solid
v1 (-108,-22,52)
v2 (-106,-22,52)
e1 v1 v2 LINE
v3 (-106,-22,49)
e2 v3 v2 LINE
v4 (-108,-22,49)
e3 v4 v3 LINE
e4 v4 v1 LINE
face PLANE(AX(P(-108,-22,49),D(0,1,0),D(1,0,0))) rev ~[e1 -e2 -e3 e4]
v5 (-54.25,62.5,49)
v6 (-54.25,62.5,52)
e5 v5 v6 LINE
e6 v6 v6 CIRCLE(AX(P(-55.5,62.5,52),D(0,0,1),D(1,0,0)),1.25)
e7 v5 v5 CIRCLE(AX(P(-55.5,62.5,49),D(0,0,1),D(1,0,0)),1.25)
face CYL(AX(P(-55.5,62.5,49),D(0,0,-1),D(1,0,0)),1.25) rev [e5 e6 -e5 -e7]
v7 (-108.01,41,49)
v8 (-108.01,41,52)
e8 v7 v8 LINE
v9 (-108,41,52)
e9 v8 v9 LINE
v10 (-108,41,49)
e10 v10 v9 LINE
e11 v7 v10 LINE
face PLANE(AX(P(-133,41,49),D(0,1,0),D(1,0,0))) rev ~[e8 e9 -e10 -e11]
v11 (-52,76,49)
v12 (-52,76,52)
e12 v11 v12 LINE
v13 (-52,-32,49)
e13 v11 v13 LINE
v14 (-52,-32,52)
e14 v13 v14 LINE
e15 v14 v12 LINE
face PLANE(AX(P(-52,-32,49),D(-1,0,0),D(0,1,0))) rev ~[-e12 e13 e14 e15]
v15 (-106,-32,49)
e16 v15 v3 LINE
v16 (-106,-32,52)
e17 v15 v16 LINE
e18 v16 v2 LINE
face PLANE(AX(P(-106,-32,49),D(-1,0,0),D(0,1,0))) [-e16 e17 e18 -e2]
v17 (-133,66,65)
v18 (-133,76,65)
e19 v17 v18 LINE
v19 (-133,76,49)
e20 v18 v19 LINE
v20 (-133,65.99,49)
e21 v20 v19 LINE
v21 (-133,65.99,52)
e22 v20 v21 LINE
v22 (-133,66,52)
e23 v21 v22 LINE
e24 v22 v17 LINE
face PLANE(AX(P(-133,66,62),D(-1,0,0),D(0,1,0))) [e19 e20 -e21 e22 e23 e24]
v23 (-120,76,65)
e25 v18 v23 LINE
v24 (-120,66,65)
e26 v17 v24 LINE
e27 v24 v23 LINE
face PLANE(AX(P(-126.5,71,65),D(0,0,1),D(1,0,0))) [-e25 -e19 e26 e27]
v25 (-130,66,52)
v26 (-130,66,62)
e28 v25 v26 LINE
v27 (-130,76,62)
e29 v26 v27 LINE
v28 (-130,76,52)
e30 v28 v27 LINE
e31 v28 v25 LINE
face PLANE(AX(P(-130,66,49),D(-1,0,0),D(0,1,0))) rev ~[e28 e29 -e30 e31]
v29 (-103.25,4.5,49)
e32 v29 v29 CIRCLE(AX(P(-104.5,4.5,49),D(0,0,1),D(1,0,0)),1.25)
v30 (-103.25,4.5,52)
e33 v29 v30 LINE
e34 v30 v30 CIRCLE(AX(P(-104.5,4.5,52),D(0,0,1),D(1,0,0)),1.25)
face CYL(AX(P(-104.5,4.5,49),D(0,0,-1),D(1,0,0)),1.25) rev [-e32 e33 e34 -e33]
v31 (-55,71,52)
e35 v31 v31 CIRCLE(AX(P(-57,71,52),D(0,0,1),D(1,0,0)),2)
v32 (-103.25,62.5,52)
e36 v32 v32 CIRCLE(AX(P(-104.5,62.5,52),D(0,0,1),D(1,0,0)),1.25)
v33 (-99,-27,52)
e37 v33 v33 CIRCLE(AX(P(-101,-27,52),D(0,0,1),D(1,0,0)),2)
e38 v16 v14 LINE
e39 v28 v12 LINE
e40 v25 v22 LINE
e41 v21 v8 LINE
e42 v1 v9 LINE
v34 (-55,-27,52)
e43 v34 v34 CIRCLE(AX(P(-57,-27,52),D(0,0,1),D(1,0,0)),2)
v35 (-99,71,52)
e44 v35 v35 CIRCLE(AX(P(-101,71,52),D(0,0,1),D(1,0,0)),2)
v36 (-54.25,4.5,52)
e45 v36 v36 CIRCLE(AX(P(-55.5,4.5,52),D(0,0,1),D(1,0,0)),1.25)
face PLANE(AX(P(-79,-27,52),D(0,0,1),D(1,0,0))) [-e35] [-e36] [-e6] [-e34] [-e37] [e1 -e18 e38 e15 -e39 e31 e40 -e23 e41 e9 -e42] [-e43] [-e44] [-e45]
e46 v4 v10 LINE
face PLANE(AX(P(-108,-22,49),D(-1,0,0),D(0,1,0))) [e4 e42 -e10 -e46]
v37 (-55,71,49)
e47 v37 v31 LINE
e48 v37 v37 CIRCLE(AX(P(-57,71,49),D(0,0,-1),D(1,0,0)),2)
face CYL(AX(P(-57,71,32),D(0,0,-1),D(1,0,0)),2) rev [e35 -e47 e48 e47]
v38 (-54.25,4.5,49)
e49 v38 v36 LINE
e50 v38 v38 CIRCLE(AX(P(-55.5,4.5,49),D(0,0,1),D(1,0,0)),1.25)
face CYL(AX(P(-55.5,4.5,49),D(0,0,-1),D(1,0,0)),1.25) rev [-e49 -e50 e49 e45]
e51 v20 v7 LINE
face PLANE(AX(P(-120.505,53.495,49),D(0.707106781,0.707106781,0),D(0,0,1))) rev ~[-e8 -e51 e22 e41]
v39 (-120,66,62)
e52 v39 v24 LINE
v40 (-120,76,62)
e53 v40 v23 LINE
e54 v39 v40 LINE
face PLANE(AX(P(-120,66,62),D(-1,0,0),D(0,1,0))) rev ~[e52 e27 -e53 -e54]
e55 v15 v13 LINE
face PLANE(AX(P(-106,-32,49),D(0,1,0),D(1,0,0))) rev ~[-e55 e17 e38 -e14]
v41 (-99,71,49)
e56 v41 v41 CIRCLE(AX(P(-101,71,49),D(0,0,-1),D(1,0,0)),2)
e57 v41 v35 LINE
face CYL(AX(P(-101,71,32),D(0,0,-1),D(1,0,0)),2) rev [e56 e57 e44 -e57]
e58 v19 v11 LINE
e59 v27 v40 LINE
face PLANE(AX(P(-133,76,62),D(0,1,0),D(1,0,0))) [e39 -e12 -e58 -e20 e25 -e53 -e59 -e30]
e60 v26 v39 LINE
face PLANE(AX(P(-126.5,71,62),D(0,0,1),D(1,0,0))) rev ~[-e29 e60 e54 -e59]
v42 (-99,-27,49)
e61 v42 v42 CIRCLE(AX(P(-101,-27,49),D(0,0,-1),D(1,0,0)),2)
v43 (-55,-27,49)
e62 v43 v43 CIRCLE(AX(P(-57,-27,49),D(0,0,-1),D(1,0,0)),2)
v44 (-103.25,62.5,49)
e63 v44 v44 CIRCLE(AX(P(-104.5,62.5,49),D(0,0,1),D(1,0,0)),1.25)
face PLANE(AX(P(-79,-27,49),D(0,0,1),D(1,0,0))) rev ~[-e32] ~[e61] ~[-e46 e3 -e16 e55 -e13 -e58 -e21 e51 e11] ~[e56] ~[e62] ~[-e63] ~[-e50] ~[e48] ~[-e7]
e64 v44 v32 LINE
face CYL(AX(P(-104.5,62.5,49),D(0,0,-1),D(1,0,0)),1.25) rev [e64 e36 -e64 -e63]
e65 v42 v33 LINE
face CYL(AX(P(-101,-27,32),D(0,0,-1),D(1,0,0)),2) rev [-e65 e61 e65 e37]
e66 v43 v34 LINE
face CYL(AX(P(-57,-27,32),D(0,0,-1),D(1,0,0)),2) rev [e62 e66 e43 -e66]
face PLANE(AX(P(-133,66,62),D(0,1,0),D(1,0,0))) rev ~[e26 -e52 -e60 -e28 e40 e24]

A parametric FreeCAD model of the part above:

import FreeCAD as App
import Part
import Sketcher


def edges_at(feature, points):
    """Names of the edges that pass closest to the given points."""
    edges = feature.Shape.Edges
    near = lambda p: min(range(len(edges)), key=lambda i: edges[i].distToShape(Part.Vertex(*p))[0])
    return sorted({f"Edge{near(p) + 1}" for p in points})

doc = App.newDocument("Part")
body = doc.addObject("PartDesign::Body", "Body")

# Sketch on XY plane
sketch1 = doc.addObject("Sketcher::SketchObject", "Sketch")
body.addObject(sketch1)
sketch1.AttachmentSupport = (doc.XY_Plane, [""])
sketch1.MapMode = "FlatFace"
sketch1.AttachmentOffset = App.Placement(App.Vector(0, 0, 62), App.Rotation())
sketch1.addGeometry([
    Part.LineSegment(App.Vector(-133, 76, 0), App.Vector(-133, 66, 0)),
    Part.LineSegment(App.Vector(-133, 66, 0), App.Vector(-120, 66, 0)),
    Part.LineSegment(App.Vector(-120, 66, 0), App.Vector(-120, 76, 0)),
    Part.LineSegment(App.Vector(-120, 76, 0), App.Vector(-133, 76, 0)),
], False)
sketch1.addConstraint([
    Sketcher.Constraint("Coincident", 0, 2, 1, 1),
    Sketcher.Constraint("Coincident", 1, 2, 2, 1),
    Sketcher.Constraint("Coincident", 2, 2, 3, 1),
    Sketcher.Constraint("Coincident", 3, 2, 0, 1),
    Sketcher.Constraint("Vertical", 0),
    Sketcher.Constraint("Horizontal", 1),
    Sketcher.Constraint("Vertical", 2),
    Sketcher.Constraint("Horizontal", 3),
    Sketcher.Constraint("DistanceX", 1, 1, 1, 2, 13.0),
    Sketcher.Constraint("DistanceY", 0, 2, 0, 1, 10.0),
    Sketcher.Constraint("DistanceX", 0, 2, -1, 1, 133.0),
    Sketcher.Constraint("DistanceY", -1, 1, 0, 2, 66.0),
])
pad1 = doc.addObject("PartDesign::Pad", "Pad")
body.addObject(pad1)
pad1.Profile = sketch1
pad1.Length = 3
body2 = doc.addObject("PartDesign::Body", "Body001")

# Sketch on XY plane
sketch2 = doc.addObject("Sketcher::SketchObject", "Sketch001")
body2.addObject(sketch2)
sketch2.AttachmentSupport = (doc.getObject("XY_Plane001"), [""])
sketch2.MapMode = "FlatFace"
sketch2.AttachmentOffset = App.Placement(App.Vector(0, 0, 32), App.Rotation())
sketch2.addGeometry(Part.Circle(App.Vector(-101, 71, 0), App.Vector(0, 0, 1), 2), False)
sketch2.addConstraint([
    Sketcher.Constraint("Diameter", 0, 4.0),
    Sketcher.Constraint("DistanceX", 0, 3, -1, 1, 101.0),
    Sketcher.Constraint("DistanceY", -1, 1, 0, 3, 71.0),
])
pad2 = doc.addObject("PartDesign::Pad", "Pad001")
body2.addObject(pad2)
pad2.Profile = sketch2
pad2.Length = 20
body3 = doc.addObject("PartDesign::Body", "Body002")

# Sketch on XY plane
sketch3 = doc.addObject("Sketcher::SketchObject", "Sketch002")
body3.addObject(sketch3)
sketch3.AttachmentSupport = (doc.getObject("XY_Plane002"), [""])
sketch3.MapMode = "FlatFace"
sketch3.AttachmentOffset = App.Placement(App.Vector(0, 0, 32), App.Rotation())
sketch3.addGeometry(Part.Circle(App.Vector(-101, -27, 0), App.Vector(0, 0, 1), 2), False)
sketch3.addConstraint([
    Sketcher.Constraint("Diameter", 0, 4.0),
    Sketcher.Constraint("DistanceX", 0, 3, -1, 1, 101.0),
    Sketcher.Constraint("DistanceY", 0, 3, -1, 1, 27.0),
])
pad3 = doc.addObject("PartDesign::Pad", "Pad002")
body3.addObject(pad3)
pad3.Profile = sketch3
pad3.Length = 20
body4 = doc.addObject("PartDesign::Body", "Body003")

# Sketch on XY plane
sketch4 = doc.addObject("Sketcher::SketchObject", "Sketch003")
body4.addObject(sketch4)
sketch4.AttachmentSupport = (doc.getObject("XY_Plane003"), [""])
sketch4.MapMode = "FlatFace"
sketch4.AttachmentOffset = App.Placement(App.Vector(0, 0, 32), App.Rotation())
sketch4.addGeometry(Part.Circle(App.Vector(-57, -27, 0), App.Vector(0, 0, 1), 2), False)
sketch4.addConstraint([
    Sketcher.Constraint("Diameter", 0, 4.0),
    Sketcher.Constraint("DistanceX", 0, 3, -1, 1, 57.0),
    Sketcher.Constraint("DistanceY", 0, 3, -1, 1, 27.0),
])
pad4 = doc.addObject("PartDesign::Pad", "Pad003")
body4.addObject(pad4)
pad4.Profile = sketch4
pad4.Length = 20
body5 = doc.addObject("PartDesign::Body", "Body004")
body5.AllowCompound = True

# Sketch on XY plane
sketch5 = doc.addObject("Sketcher::SketchObject", "Sketch004")
body5.addObject(sketch5)
sketch5.AttachmentSupport = (doc.getObject("XY_Plane004"), [""])
sketch5.MapMode = "FlatFace"
sketch5.AttachmentOffset = App.Placement(App.Vector(0, 0, 32), App.Rotation())
sketch5.addGeometry(Part.Circle(App.Vector(-57, 71, 0), App.Vector(0, 0, 1), 2), False)
sketch5.addConstraint([
    Sketcher.Constraint("Diameter", 0, 4.0),
    Sketcher.Constraint("DistanceX", 0, 3, -1, 1, 57.0),
    Sketcher.Constraint("DistanceY", -1, 1, 0, 3, 71.0),
])
pad5 = doc.addObject("PartDesign::Pad", "Pad004")
body5.addObject(pad5)
pad5.Profile = sketch5
pad5.Length = 20
doc.recompute()

boolean = doc.addObject("PartDesign::Boolean", "Boolean")
body5.addObject(boolean)
boolean.Type = "Fuse"
boolean.addObjects([body2])
doc.recompute()

boolean2 = doc.addObject("PartDesign::Boolean", "Boolean001")
body5.addObject(boolean2)
boolean2.Type = "Fuse"
boolean2.addObjects([body3])
doc.recompute()

boolean3 = doc.addObject("PartDesign::Boolean", "Boolean002")
body5.addObject(boolean3)
boolean3.Type = "Fuse"
boolean3.addObjects([body4])
body6 = doc.addObject("PartDesign::Body", "Body005")

# Sketch on XY plane
sketch6 = doc.addObject("Sketcher::SketchObject", "Sketch005")
body6.addObject(sketch6)
sketch6.AttachmentSupport = (doc.getObject("XY_Plane005"), [""])
sketch6.MapMode = "FlatFace"
sketch6.AttachmentOffset = App.Placement(App.Vector(0, 0, 49), App.Rotation())
sketch6.addGeometry([
    Part.LineSegment(App.Vector(-133, 76, 0), App.Vector(-133, 66, 0)),
    Part.LineSegment(App.Vector(-133, 66, 0), App.Vector(-130, 66, 0)),
    Part.LineSegment(App.Vector(-130, 66, 0), App.Vector(-130, 76, 0)),
    Part.LineSegment(App.Vector(-130, 76, 0), App.Vector(-133, 76, 0)),
], False)
sketch6.addConstraint([
    Sketcher.Constraint("Coincident", 0, 2, 1, 1),
    Sketcher.Constraint("Coincident", 1, 2, 2, 1),
    Sketcher.Constraint("Coincident", 2, 2, 3, 1),
    Sketcher.Constraint("Coincident", 3, 2, 0, 1),
    Sketcher.Constraint("Vertical", 0),
    Sketcher.Constraint("Horizontal", 1),
    Sketcher.Constraint("Vertical", 2),
    Sketcher.Constraint("Horizontal", 3),
    Sketcher.Constraint("DistanceX", 1, 1, 1, 2, 3.0),
    Sketcher.Constraint("DistanceY", 0, 2, 0, 1, 10.0),
    Sketcher.Constraint("DistanceX", 0, 2, -1, 1, 133.0),
    Sketcher.Constraint("DistanceY", -1, 1, 0, 2, 66.0),
])
pad6 = doc.addObject("PartDesign::Pad", "Pad005")
body6.addObject(pad6)
pad6.Profile = sketch6
pad6.Length = 13
body7 = doc.addObject("PartDesign::Body", "Body006")

# Sketch on XY plane
sketch7 = doc.addObject("Sketcher::SketchObject", "Sketch006")
body7.addObject(sketch7)
sketch7.AttachmentSupport = (doc.getObject("XY_Plane006"), [""])
sketch7.MapMode = "FlatFace"
sketch7.AttachmentOffset = App.Placement(App.Vector(0, 0, 49), App.Rotation())
sketch7.addGeometry([
    Part.LineSegment(App.Vector(-133, 76, 0), App.Vector(-133, 66, 0)),
    Part.LineSegment(App.Vector(-133, 66, 0), App.Vector(-52, 66, 0)),
    Part.LineSegment(App.Vector(-52, 66, 0), App.Vector(-52, 76, 0)),
    Part.LineSegment(App.Vector(-52, 76, 0), App.Vector(-133, 76, 0)),
], False)
sketch7.addConstraint([
    Sketcher.Constraint("Coincident", 0, 2, 1, 1),
    Sketcher.Constraint("Coincident", 1, 2, 2, 1),
    Sketcher.Constraint("Coincident", 2, 2, 3, 1),
    Sketcher.Constraint("Coincident", 3, 2, 0, 1),
    Sketcher.Constraint("Vertical", 0),
    Sketcher.Constraint("Horizontal", 1),
    Sketcher.Constraint("Vertical", 2),
    Sketcher.Constraint("Horizontal", 3),
    Sketcher.Constraint("DistanceX", 1, 1, 1, 2, 81.0),
    Sketcher.Constraint("DistanceY", 0, 2, 0, 1, 10.0),
    Sketcher.Constraint("DistanceX", 0, 2, -1, 1, 133.0),
    Sketcher.Constraint("DistanceY", -1, 1, 0, 2, 66.0),
])
pad7 = doc.addObject("PartDesign::Pad", "Pad006")
body7.addObject(pad7)
pad7.Profile = sketch7
pad7.Length = 3
body8 = doc.addObject("PartDesign::Body", "Body007")

# Sketch on XY plane
sketch8 = doc.addObject("Sketcher::SketchObject", "Sketch007")
body8.addObject(sketch8)
sketch8.AttachmentSupport = (doc.getObject("XY_Plane007"), [""])
sketch8.MapMode = "FlatFace"
sketch8.AttachmentOffset = App.Placement(App.Vector(0, 0, 49), App.Rotation())
sketch8.addGeometry([
    Part.LineSegment(App.Vector(-133, 66, 0), App.Vector(-133, 41, 0)),
    Part.LineSegment(App.Vector(-133, 41, 0), App.Vector(-108, 41, 0)),
    Part.LineSegment(App.Vector(-108, 41, 0), App.Vector(-108, 66, 0)),
    Part.LineSegment(App.Vector(-108, 66, 0), App.Vector(-133, 66, 0)),
], False)
sketch8.addConstraint([
    Sketcher.Constraint("Coincident", 0, 2, 1, 1),
    Sketcher.Constraint("Coincident", 1, 2, 2, 1),
    Sketcher.Constraint("Coincident", 2, 2, 3, 1),
    Sketcher.Constraint("Coincident", 3, 2, 0, 1),
    Sketcher.Constraint("Vertical", 0),
    Sketcher.Constraint("Horizontal", 1),
    Sketcher.Constraint("Vertical", 2),
    Sketcher.Constraint("Horizontal", 3),
    Sketcher.Constraint("Equal", 3, 0),
    Sketcher.Constraint("DistanceX", 1, 1, 1, 2, 25.0),
    Sketcher.Constraint("DistanceX", 0, 2, -1, 1, 133.0),
    Sketcher.Constraint("DistanceY", -1, 1, 0, 2, 41.0),
])
pad8 = doc.addObject("PartDesign::Pad", "Pad007")
body8.addObject(pad8)
pad8.Profile = sketch8
pad8.Length = 3
doc.recompute()

chamfer = doc.addObject("PartDesign::Chamfer", "Chamfer")
body8.addObject(chamfer)
chamfer.Base = (pad8, edges_at(pad8, [(-133, 41, 50.5)]))
chamfer.Size = 24.99
body9 = doc.addObject("PartDesign::Body", "Body008")

# Sketch on XY plane
sketch9 = doc.addObject("Sketcher::SketchObject", "Sketch008")
body9.addObject(sketch9)
sketch9.AttachmentSupport = (doc.getObject("XY_Plane008"), [""])
sketch9.MapMode = "FlatFace"
sketch9.AttachmentOffset = App.Placement(App.Vector(0, 0, 49), App.Rotation())
sketch9.addGeometry([
    Part.LineSegment(App.Vector(-106, -22, 0), App.Vector(-106, -32, 0)),
    Part.LineSegment(App.Vector(-106, -32, 0), App.Vector(-52, -32, 0)),
    Part.LineSegment(App.Vector(-52, -32, 0), App.Vector(-52, -22, 0)),
    Part.LineSegment(App.Vector(-52, -22, 0), App.Vector(-106, -22, 0)),
], False)
sketch9.addConstraint([
    Sketcher.Constraint("Coincident", 0, 2, 1, 1),
    Sketcher.Constraint("Coincident", 1, 2, 2, 1),
    Sketcher.Constraint("Coincident", 2, 2, 3, 1),
    Sketcher.Constraint("Coincident", 3, 2, 0, 1),
    Sketcher.Constraint("Vertical", 0),
    Sketcher.Constraint("Horizontal", 1),
    Sketcher.Constraint("Vertical", 2),
    Sketcher.Constraint("Horizontal", 3),
    Sketcher.Constraint("DistanceX", 1, 1, 1, 2, 54.0),
    Sketcher.Constraint("DistanceY", 0, 2, 0, 1, 10.0),
    Sketcher.Constraint("DistanceX", 0, 2, -1, 1, 106.0),
    Sketcher.Constraint("DistanceY", 0, 2, -1, 1, 32.0),
])
pad9 = doc.addObject("PartDesign::Pad", "Pad008")
body9.addObject(pad9)
pad9.Profile = sketch9
pad9.Length = 3
body10 = doc.addObject("PartDesign::Body", "Body009")

# Sketch on XY plane
sketch10 = doc.addObject("Sketcher::SketchObject", "Sketch009")
body10.addObject(sketch10)
sketch10.AttachmentSupport = (doc.getObject("XY_Plane009"), [""])
sketch10.MapMode = "FlatFace"
sketch10.AttachmentOffset = App.Placement(App.Vector(0, 0, 37), App.Rotation())
sketch10.addGeometry(Part.Circle(App.Vector(-51.5, 62.5, 0), App.Vector(0, 0, 1), 1.2), False)
sketch10.addConstraint([
    Sketcher.Constraint("Diameter", 0, 2.5),
    Sketcher.Constraint("DistanceX", 0, 3, -1, 1, 51.5),
    Sketcher.Constraint("DistanceY", -1, 1, 0, 3, 62.5),
])
pad10 = doc.addObject("PartDesign::Pad", "Pad009")
body10.addObject(pad10)
pad10.Profile = sketch10
pad10.Length = 3
body11 = doc.addObject("PartDesign::Body", "Body010")

# Sketch on XY plane
sketch11 = doc.addObject("Sketcher::SketchObject", "Sketch010")
body11.addObject(sketch11)
sketch11.AttachmentSupport = (doc.getObject("XY_Plane010"), [""])
sketch11.MapMode = "FlatFace"
sketch11.AttachmentOffset = App.Placement(App.Vector(0, 0, 37), App.Rotation())
sketch11.addGeometry(Part.Circle(App.Vector(-51.5, 4.5, 0), App.Vector(0, 0, 1), 1.2), False)
sketch11.addConstraint([
    Sketcher.Constraint("Diameter", 0, 2.5),
    Sketcher.Constraint("DistanceX", 0, 3, -1, 1, 51.5),
    Sketcher.Constraint("DistanceY", -1, 1, 0, 3, 4.5),
])
pad11 = doc.addObject("PartDesign::Pad", "Pad010")
body11.addObject(pad11)
pad11.Profile = sketch11
pad11.Length = 3
body12 = doc.addObject("PartDesign::Body", "Body011")

# Sketch on XY plane
sketch12 = doc.addObject("Sketcher::SketchObject", "Sketch011")
body12.addObject(sketch12)
sketch12.AttachmentSupport = (doc.getObject("XY_Plane011"), [""])
sketch12.MapMode = "FlatFace"
sketch12.AttachmentOffset = App.Placement(App.Vector(0, 0, 37), App.Rotation())
sketch12.addGeometry(Part.Circle(App.Vector(-100.5, 4.5, 0), App.Vector(0, 0, 1), 1.2), False)
sketch12.addConstraint([
    Sketcher.Constraint("Diameter", 0, 2.5),
    Sketcher.Constraint("DistanceX", 0, 3, -1, 1, 100.5),
    Sketcher.Constraint("DistanceY", -1, 1, 0, 3, 4.5),
])
pad12 = doc.addObject("PartDesign::Pad", "Pad011")
body12.addObject(pad12)
pad12.Profile = sketch12
pad12.Length = 3
body13 = doc.addObject("PartDesign::Body", "Body012")
body13.AllowCompound = True

# Sketch on XY plane
sketch13 = doc.addObject("Sketcher::SketchObject", "Sketch012")
body13.addObject(sketch13)
sketch13.AttachmentSupport = (doc.getObject("XY_Plane012"), [""])
sketch13.MapMode = "FlatFace"
sketch13.AttachmentOffset = App.Placement(App.Vector(0, 0, 37), App.Rotation())
sketch13.addGeometry(Part.Circle(App.Vector(-100.5, 62.5, 0), App.Vector(0, 0, 1), 1.2), False)
sketch13.addConstraint([
    Sketcher.Constraint("Diameter", 0, 2.5),
    Sketcher.Constraint("DistanceX", 0, 3, -1, 1, 100.5),
    Sketcher.Constraint("DistanceY", -1, 1, 0, 3, 62.5),
])
pad13 = doc.addObject("PartDesign::Pad", "Pad012")
body13.addObject(pad13)
pad13.Profile = sketch13
pad13.Length = 3
doc.recompute()

boolean4 = doc.addObject("PartDesign::Boolean", "Boolean003")
body13.addObject(boolean4)
boolean4.Type = "Fuse"
boolean4.addObjects([body10])
doc.recompute()

boolean5 = doc.addObject("PartDesign::Boolean", "Boolean004")
body13.addObject(boolean5)
boolean5.Type = "Fuse"
boolean5.addObjects([body11])
doc.recompute()

boolean6 = doc.addObject("PartDesign::Boolean", "Boolean005")
body13.addObject(boolean6)
boolean6.Type = "Fuse"
boolean6.addObjects([body12])
body14 = doc.addObject("PartDesign::Body", "Body013")

# Sketch on XY plane
sketch14 = doc.addObject("Sketcher::SketchObject", "Sketch013")
body14.addObject(sketch14)
sketch14.AttachmentSupport = (doc.getObject("XY_Plane013"), [""])
sketch14.MapMode = "FlatFace"
sketch14.AttachmentOffset = App.Placement(App.Vector(0, 0, 37), App.Rotation())
sketch14.addGeometry([
    Part.LineSegment(App.Vector(-104, 66, 0), App.Vector(-104, -22, 0)),
    Part.LineSegment(App.Vector(-104, -22, 0), App.Vector(-48, -22, 0)),
    Part.LineSegment(App.Vector(-48, -22, 0), App.Vector(-48, 66, 0)),
    Part.LineSegment(App.Vector(-48, 66, 0), App.Vector(-104, 66, 0)),
], False)
sketch14.addConstraint([
    Sketcher.Constraint("Coincident", 0, 2, 1, 1),
    Sketcher.Constraint("Coincident", 1, 2, 2, 1),
    Sketcher.Constraint("Coincident", 2, 2, 3, 1),
    Sketcher.Constraint("Coincident", 3, 2, 0, 1),
    Sketcher.Constraint("Vertical", 0),
    Sketcher.Constraint("Horizontal", 1),
    Sketcher.Constraint("Vertical", 2),
    Sketcher.Constraint("Horizontal", 3),
    Sketcher.Constraint("DistanceX", 1, 1, 1, 2, 56.0),
    Sketcher.Constraint("DistanceY", 0, 2, 0, 1, 88.0),
    Sketcher.Constraint("DistanceX", 0, 2, -1, 1, 104.0),
    Sketcher.Constraint("DistanceY", 0, 2, -1, 1, 22.0),
])
pad14 = doc.addObject("PartDesign::Pad", "Pad013")
body14.addObject(pad14)
pad14.Profile = sketch14
pad14.Length = 3
doc.recompute()

boolean7 = doc.addObject("PartDesign::Boolean", "Boolean006")
body14.addObject(boolean7)
boolean7.Type = "Cut"
boolean7.addObjects([body13])
body15 = doc.addObject("PartDesign::Body", "Body014")
doc.recompute()

body14.Placement = App.Placement(App.Vector(-4, 0, 12), App.Rotation(App.Vector(0, 0, 1), 0))
boolean8 = doc.addObject("PartDesign::Boolean", "Boolean007")
body15.addObject(boolean8)
boolean8.Type = "Fuse"
boolean8.addObjects([body14])
doc.recompute()

boolean9 = doc.addObject("PartDesign::Boolean", "Boolean008")
body15.addObject(boolean9)
boolean9.Type = "Fuse"
boolean9.addObjects([body7])
doc.recompute()

boolean10 = doc.addObject("PartDesign::Boolean", "Boolean009")
body15.addObject(boolean10)
boolean10.Type = "Fuse"
boolean10.addObjects([body8])
doc.recompute()

boolean11 = doc.addObject("PartDesign::Boolean", "Boolean010")
body15.addObject(boolean11)
boolean11.Type = "Fuse"
boolean11.addObjects([body9])
doc.recompute()

boolean12 = doc.addObject("PartDesign::Boolean", "Boolean011")
body15.addObject(boolean12)
boolean12.Type = "Fuse"
boolean12.addObjects([body6])
doc.recompute()

boolean13 = doc.addObject("PartDesign::Boolean", "Boolean012")
body15.addObject(boolean13)
boolean13.Type = "Cut"
boolean13.addObjects([body5])
doc.recompute()

boolean14 = doc.addObject("PartDesign::Boolean", "Boolean013")
body15.addObject(boolean14)
boolean14.Type = "Fuse"
boolean14.addObjects([body])

doc.recompute()
